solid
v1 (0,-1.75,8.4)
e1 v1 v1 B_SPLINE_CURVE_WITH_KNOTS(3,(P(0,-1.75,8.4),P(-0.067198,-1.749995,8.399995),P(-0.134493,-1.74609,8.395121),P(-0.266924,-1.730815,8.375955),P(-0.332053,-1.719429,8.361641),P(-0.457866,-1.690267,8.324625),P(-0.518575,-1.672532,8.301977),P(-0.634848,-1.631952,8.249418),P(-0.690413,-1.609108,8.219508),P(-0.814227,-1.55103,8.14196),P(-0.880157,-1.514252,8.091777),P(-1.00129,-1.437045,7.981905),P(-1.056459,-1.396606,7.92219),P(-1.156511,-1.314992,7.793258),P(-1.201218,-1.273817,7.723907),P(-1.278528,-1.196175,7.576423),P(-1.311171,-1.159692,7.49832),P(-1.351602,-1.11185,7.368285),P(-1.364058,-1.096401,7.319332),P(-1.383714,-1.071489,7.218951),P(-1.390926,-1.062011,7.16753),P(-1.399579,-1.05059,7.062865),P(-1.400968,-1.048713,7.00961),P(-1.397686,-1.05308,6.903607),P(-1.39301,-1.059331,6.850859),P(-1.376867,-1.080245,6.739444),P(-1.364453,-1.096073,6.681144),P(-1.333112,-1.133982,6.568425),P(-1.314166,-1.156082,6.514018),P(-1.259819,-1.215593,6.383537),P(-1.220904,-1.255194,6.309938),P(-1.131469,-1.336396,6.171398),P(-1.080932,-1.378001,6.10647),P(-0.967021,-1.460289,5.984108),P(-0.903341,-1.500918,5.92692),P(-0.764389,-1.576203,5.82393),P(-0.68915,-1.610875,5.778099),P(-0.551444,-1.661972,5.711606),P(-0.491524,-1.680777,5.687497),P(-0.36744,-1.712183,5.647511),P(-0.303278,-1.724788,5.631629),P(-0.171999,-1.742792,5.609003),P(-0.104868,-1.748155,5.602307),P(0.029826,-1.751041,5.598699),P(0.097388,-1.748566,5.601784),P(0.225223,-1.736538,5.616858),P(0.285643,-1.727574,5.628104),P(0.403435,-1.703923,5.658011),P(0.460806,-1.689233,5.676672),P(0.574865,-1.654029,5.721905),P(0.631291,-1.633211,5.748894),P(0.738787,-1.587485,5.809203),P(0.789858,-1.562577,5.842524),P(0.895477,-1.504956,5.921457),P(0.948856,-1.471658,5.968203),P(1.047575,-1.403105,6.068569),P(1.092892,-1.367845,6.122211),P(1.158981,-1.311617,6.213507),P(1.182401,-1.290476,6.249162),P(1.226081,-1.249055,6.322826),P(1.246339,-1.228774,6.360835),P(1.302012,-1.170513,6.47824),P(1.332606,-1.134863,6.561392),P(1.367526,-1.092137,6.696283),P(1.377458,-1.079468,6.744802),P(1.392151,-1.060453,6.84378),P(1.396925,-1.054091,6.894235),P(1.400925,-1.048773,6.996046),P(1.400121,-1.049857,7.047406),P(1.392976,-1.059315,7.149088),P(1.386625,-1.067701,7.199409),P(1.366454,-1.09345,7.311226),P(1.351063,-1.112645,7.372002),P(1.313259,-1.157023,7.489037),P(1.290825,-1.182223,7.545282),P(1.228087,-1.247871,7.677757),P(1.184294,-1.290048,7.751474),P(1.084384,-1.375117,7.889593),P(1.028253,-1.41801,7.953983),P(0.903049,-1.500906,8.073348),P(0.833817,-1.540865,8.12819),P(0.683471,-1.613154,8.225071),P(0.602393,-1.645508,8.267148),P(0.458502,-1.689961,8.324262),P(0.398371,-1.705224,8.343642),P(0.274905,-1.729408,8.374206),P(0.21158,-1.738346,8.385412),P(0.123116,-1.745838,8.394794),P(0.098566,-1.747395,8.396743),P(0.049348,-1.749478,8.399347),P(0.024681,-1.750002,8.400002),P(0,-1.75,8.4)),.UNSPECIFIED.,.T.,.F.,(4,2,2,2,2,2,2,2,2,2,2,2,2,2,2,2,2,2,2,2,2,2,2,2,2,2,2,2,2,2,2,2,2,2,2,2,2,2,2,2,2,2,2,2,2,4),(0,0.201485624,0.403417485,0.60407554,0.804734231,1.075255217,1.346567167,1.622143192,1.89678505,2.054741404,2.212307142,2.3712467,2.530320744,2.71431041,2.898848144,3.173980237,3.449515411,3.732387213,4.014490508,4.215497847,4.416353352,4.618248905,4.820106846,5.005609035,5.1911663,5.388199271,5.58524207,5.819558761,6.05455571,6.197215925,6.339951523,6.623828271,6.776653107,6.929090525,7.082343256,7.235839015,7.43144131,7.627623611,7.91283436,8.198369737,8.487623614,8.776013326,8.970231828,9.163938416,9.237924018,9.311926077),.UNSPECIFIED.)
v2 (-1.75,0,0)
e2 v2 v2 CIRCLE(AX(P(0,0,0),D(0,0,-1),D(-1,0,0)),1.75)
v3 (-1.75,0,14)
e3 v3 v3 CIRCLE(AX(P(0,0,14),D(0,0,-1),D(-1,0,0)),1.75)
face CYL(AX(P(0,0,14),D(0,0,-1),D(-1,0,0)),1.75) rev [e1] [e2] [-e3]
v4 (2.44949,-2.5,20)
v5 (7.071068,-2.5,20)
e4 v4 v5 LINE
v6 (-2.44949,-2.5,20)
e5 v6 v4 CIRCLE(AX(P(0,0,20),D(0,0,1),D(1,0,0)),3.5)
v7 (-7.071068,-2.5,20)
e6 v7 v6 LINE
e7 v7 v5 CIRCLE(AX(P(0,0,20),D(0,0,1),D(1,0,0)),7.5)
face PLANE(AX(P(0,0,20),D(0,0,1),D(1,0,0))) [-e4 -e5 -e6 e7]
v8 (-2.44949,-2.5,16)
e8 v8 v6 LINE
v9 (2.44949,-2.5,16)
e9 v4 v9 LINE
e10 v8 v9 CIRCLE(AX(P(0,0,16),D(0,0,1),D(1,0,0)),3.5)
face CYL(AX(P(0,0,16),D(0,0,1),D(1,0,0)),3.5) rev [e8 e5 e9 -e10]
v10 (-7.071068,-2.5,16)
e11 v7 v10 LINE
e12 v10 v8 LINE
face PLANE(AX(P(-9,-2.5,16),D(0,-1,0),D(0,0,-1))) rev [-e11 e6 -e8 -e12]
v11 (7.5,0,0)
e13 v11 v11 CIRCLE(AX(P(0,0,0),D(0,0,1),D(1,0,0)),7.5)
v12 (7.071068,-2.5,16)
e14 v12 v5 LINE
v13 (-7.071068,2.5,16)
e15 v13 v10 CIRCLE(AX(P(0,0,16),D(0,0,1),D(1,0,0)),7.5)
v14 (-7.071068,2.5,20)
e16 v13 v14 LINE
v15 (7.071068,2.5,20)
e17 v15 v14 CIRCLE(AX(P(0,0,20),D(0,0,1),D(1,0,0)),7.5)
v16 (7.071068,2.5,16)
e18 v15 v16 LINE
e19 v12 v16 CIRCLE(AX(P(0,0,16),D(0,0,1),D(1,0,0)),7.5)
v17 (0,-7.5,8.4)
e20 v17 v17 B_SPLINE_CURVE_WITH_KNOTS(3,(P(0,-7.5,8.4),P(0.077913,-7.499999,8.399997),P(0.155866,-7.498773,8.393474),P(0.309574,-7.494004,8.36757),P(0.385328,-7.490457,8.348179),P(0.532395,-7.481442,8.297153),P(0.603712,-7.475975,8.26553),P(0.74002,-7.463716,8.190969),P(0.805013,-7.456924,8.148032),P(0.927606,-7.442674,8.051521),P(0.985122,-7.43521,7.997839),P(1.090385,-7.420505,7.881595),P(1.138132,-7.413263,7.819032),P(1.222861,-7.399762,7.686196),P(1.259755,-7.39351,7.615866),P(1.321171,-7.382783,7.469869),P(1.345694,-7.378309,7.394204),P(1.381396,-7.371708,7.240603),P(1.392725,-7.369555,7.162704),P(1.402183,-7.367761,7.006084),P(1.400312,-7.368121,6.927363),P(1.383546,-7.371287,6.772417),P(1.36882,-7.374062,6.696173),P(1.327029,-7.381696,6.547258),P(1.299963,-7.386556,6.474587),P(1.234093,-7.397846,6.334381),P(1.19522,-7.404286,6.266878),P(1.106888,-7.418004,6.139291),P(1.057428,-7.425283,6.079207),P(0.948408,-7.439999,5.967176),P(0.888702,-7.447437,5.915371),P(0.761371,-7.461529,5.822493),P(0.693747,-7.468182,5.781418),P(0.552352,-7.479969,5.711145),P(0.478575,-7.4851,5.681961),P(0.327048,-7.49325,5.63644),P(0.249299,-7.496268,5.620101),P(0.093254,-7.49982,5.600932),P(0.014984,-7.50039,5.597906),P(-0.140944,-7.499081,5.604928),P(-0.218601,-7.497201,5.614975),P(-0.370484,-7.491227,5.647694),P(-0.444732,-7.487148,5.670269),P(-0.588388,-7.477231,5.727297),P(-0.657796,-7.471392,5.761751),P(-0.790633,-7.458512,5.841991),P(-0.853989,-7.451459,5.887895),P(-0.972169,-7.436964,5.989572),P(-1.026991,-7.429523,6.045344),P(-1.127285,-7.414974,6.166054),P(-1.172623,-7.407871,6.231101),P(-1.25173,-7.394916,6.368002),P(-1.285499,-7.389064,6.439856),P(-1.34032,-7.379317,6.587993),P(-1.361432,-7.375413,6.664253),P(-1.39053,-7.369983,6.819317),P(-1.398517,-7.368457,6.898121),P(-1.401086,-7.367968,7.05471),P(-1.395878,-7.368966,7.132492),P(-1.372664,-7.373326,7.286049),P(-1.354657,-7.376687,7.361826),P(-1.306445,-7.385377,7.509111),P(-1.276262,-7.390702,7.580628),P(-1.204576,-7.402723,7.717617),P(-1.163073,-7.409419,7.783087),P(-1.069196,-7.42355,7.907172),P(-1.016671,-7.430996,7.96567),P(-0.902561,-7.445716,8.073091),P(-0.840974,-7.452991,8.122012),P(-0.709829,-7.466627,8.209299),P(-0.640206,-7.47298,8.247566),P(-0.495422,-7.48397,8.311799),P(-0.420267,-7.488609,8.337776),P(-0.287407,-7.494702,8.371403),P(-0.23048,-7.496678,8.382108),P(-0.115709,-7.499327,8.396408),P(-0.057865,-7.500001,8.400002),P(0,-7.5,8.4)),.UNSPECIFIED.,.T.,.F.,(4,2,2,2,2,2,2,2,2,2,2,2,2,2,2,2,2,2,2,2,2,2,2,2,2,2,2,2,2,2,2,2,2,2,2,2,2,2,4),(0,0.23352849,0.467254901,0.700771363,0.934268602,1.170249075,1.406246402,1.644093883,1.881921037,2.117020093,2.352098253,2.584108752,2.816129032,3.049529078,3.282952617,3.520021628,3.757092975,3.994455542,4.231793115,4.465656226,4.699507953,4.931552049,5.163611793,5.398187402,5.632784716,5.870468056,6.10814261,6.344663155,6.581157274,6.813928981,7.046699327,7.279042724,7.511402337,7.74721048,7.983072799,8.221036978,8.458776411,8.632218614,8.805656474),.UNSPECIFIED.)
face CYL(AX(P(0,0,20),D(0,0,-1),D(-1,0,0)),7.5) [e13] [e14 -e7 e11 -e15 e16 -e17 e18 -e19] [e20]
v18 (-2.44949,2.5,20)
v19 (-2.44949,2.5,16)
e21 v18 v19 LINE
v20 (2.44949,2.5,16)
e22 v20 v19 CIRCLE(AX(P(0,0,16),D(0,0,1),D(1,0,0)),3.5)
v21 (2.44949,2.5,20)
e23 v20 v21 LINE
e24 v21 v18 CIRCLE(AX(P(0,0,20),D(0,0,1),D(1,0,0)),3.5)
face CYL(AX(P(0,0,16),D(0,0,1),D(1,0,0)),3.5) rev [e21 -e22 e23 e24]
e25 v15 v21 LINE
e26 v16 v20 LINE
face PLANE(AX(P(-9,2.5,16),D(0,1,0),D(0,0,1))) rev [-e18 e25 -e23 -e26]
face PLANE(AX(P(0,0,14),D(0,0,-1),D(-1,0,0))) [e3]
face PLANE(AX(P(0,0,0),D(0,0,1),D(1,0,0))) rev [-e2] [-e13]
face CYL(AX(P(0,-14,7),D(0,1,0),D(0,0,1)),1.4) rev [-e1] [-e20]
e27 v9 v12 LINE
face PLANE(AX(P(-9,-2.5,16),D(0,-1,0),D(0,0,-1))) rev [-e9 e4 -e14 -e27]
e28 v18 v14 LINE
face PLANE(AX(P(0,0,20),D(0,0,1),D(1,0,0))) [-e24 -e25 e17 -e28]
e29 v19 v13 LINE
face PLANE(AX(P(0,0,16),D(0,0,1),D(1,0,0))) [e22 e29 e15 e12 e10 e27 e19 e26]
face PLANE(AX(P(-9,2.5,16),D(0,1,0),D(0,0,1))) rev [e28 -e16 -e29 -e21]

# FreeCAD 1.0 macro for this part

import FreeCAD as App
import Part
import Sketcher

V = App.Vector
Q = App.Units.Quantity


def add_polygon(sketch, points):
    """Adds a closed chain of lines whose ends are joined by coincident constraints."""
    first, n = sketch.GeometryCount, len(points)
    for a, b in zip(points, points[1:] + points[:1]):
        sketch.addGeometry(Part.LineSegment(App.Vector(*a, 0), App.Vector(*b, 0)), False)
    for i in range(n):
        sketch.addConstraint(Sketcher.Constraint("Coincident", first + i, 2, first + (i + 1) % n, 1))

doc = App.newDocument("Part")
body = doc.addObject("PartDesign::Body", "Body")

# Sketch on XY plane
sketch1 = body.newObject("Sketcher::SketchObject", "Sketch")
sketch1.AttachmentSupport = (doc.getObject("XY_Plane"), [""])
sketch1.MapMode = "FlatFace"
sketch1.addGeometry(Part.Circle(V(0, 0, 0), V(0, 0, 1), 8), False)
sketch1.addConstraint(Sketcher.Constraint("Coincident", 0, 3, -1, 1))
sketch1.addConstraint(Sketcher.Constraint("Diameter", 0, Q("15 mm")))
pad1 = body.newObject("PartDesign::Pad", "Pad")
pad1.Profile = sketch1
pad1.Length = 20

# Sketch on XY plane
sketch2 = body.newObject("Sketcher::SketchObject", "Sketch001")
sketch2.AttachmentSupport = (doc.getObject("XY_Plane"), [""])
sketch2.MapMode = "FlatFace"
sketch2.AttachmentOffset = App.Placement(V(0, 0, 20), App.Rotation())
sketch2.addGeometry(Part.Circle(V(0, 0, 0), V(0, 0, 1), 3.5), False)
sketch2.addConstraint(Sketcher.Constraint("Coincident", 0, 3, -1, 1))
sketch2.addConstraint(Sketcher.Constraint("Diameter", 0, Q("7 mm")))
pocket1 = body.newObject("PartDesign::Pocket", "Pocket")
pocket1.Profile = sketch2
pocket1.Length = 4

# Sketch on XY plane
sketch3 = body.newObject("Sketcher::SketchObject", "Sketch002")
sketch3.AttachmentSupport = (doc.getObject("XY_Plane"), [""])
sketch3.MapMode = "FlatFace"
sketch3.addGeometry(Part.Circle(V(0, 0, 0), V(0, 0, 1), 1.8), False)
sketch3.addConstraint(Sketcher.Constraint("Coincident", 0, 3, -1, 1))
sketch3.addConstraint(Sketcher.Constraint("Diameter", 0, Q("3.5 mm")))
pocket2 = body.newObject("PartDesign::Pocket", "Pocket001")
pocket2.Profile = sketch3
pocket2.Length = 14
pocket2.Reversed = True

# Sketch on XZ plane
sketch4 = body.newObject("Sketcher::SketchObject", "Sketch003")
sketch4.AttachmentSupport = (doc.getObject("XZ_Plane"), [""])
sketch4.MapMode = "FlatFace"
sketch4.addGeometry(Part.Circle(V(0, 7, 0), V(0, 0, 1), 1.4), False)
sketch4.addConstraint(Sketcher.Constraint("PointOnObject", 0, 3, -2))
sketch4.addConstraint(Sketcher.Constraint("Diameter", 0, Q("2.8 mm")))
sketch4.addConstraint(Sketcher.Constraint("DistanceY", -1, 1, 0, 3, Q("7 mm")))
pocket3 = body.newObject("PartDesign::Pocket", "Pocket002")
pocket3.Profile = sketch4
pocket3.Length = 14
pocket3.Reversed = True

# Sketch on XY plane
sketch5 = body.newObject("Sketcher::SketchObject", "Sketch004")
sketch5.AttachmentSupport = (doc.getObject("XY_Plane"), [""])
sketch5.MapMode = "FlatFace"
sketch5.AttachmentOffset = App.Placement(V(0, 0, 20), App.Rotation())
add_polygon(sketch5, [(-9, 2), (-9, -2), (9, -2), (9, 2)])  # lines 0-3
sketch5.addConstraint(Sketcher.Constraint("Vertical", 0))
sketch5.addConstraint(Sketcher.Constraint("Horizontal", 1))
sketch5.addConstraint(Sketcher.Constraint("Vertical", 2))
sketch5.addConstraint(Sketcher.Constraint("Horizontal", 3))
sketch5.addConstraint(Sketcher.Constraint("Symmetric", 0, 2, 2, 2, -1, 1))
sketch5.addConstraint(Sketcher.Constraint("DistanceX", 1, 1, 1, 2, Q("18 mm")))
sketch5.addConstraint(Sketcher.Constraint("DistanceY", 0, 2, 0, 1, Q("5 mm")))
pocket4 = body.newObject("PartDesign::Pocket", "Pocket003")
pocket4.Profile = sketch5
pocket4.Length = 4

doc.recompute()
